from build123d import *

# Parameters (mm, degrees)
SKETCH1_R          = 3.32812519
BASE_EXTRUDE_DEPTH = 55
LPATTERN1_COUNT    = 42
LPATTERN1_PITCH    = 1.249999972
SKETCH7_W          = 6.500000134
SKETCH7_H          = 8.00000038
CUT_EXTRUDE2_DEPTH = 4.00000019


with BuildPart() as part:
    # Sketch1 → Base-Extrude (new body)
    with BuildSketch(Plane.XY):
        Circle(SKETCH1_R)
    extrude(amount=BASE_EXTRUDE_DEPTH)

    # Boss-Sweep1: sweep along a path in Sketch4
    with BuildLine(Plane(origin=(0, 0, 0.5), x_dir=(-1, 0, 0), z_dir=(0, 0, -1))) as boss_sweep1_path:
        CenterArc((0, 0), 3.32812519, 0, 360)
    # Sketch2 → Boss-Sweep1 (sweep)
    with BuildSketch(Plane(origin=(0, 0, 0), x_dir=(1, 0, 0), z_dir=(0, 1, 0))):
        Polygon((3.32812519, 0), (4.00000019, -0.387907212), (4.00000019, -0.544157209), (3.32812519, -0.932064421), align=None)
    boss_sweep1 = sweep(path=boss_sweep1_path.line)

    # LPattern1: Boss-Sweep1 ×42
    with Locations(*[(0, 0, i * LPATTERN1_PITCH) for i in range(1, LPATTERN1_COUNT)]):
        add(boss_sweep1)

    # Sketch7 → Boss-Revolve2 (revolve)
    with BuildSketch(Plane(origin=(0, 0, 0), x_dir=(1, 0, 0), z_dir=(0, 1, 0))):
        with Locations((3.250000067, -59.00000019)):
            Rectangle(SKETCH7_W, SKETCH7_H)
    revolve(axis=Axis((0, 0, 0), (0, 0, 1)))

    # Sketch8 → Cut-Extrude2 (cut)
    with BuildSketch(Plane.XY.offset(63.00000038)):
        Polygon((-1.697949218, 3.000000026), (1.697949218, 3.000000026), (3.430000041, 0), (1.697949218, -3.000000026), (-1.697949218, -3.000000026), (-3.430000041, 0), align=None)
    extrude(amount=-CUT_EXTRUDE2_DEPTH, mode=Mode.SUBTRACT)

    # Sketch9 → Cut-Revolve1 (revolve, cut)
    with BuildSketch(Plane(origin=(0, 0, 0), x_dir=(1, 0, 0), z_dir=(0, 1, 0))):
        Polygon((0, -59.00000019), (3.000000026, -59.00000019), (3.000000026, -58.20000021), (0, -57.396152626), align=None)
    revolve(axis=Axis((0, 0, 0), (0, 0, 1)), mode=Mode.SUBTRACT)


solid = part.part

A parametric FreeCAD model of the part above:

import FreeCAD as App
import Part
import Sketcher

V = App.Vector
Q = App.Units.Quantity

doc = App.newDocument("Part")
body = doc.addObject("PartDesign::Body", "Body")

# Sketch on XY plane
sketch1 = doc.addObject("Sketcher::SketchObject", "Sketch")
body.addObject(sketch1)
sketch1.AttachmentSupport = (doc.XY_Plane, [""])
sketch1.MapMode = "FlatFace"
sketch1.addGeometry(Part.Circle(V(0, 0, 0), V(0, 0, 1), 3.3), False)
sketch1.addConstraint(Sketcher.Constraint("Coincident", 0, 3, -1, 1))
sketch1.addConstraint(Sketcher.Constraint("Diameter", 0, Q("6.65625 mm")))
pad1 = doc.addObject("PartDesign::Pad", "Pad")
body.addObject(pad1)
pad1.Profile = sketch1
pad1.Length = 55

# Sketch on XZ plane
sketch2 = doc.addObject("Sketcher::SketchObject", "Sketch001")
body.addObject(sketch2)
sketch2.AttachmentSupport = (doc.XZ_Plane, [""])
sketch2.MapMode = "FlatFace"
sketch2.addGeometry(Part.LineSegment(V(4, 0.39, 0), V(3.33, 0, 0)), False)
sketch2.addGeometry(Part.LineSegment(V(3.33, 0, 0), V(3.33, 0.93, 0)), False)
sketch2.addGeometry(Part.LineSegment(V(3.33, 0.93, 0), V(4, 0.54, 0)), False)
sketch2.addGeometry(Part.LineSegment(V(4, 0.54, 0), V(4, 0.39, 0)), False)
sketch2.addConstraint(Sketcher.Constraint("Coincident", 0, 2, 1, 1))
sketch2.addConstraint(Sketcher.Constraint("Coincident", 1, 2, 2, 1))
sketch2.addConstraint(Sketcher.Constraint("Coincident", 2, 2, 3, 1))
sketch2.addConstraint(Sketcher.Constraint("Coincident", 3, 2, 0, 1))
sketch2.addConstraint(Sketcher.Constraint("Vertical", 1))
sketch2.addConstraint(Sketcher.Constraint("Vertical", 3))
sketch2.addConstraint(Sketcher.Constraint("PointOnObject", 0, 2, -1))
sketch2.addConstraint(Sketcher.Constraint("Equal", 0, 2))
sketch2.addConstraint(Sketcher.Constraint("Angle", 0, Q("-150 deg")))
sketch2.addConstraint(Sketcher.Constraint("DistanceX", -1, 1, 2, 2, Q("4 mm")))
sketch2.addConstraint(Sketcher.Constraint("DistanceY", 3, 2, 3, 1, Q("0.15625 mm")))
sketch2.addConstraint(Sketcher.Constraint("DistanceY", 1, 1, 1, 2, Q("0.932064 mm")))

# Sketch on XY plane
sketch3 = doc.addObject("Sketcher::SketchObject", "Sketch002")
body.addObject(sketch3)
sketch3.AttachmentSupport = (doc.XY_Plane, [""])
sketch3.MapMode = "FlatFace"
sketch3.AttachmentOffset = App.Placement(V(0, 0, 0.5), App.Rotation())
sketch3.addGeometry(Part.Circle(V(0, 0, 0), V(0, 0, 1), 3.3), False)
sketch3.addConstraint(Sketcher.Constraint("Coincident", 0, 3, -1, 1))
sketch3.addConstraint(Sketcher.Constraint("Diameter", 0, Q("6.65625 mm")))
doc.recompute()

additivepipe = doc.addObject("PartDesign::AdditivePipe", "AdditivePipe")
body.addObject(additivepipe)
additivepipe.Profile = sketch2
additivepipe.Spine = (sketch3, ["Edge1"])
doc.recompute()

linearpattern = doc.addObject("PartDesign::LinearPattern", "LinearPattern")
body.addObject(linearpattern)
linearpattern.Originals = [additivepipe]
linearpattern.Direction = (doc.Z_Axis, [""])
linearpattern.Mode = "offset"
linearpattern.Offset = 1.25
linearpattern.Occurrences = 42
body.Tip = linearpattern

# Sketch on XZ plane
sketch4 = doc.addObject("Sketcher::SketchObject", "Sketch003")
body.addObject(sketch4)
sketch4.AttachmentSupport = (doc.XZ_Plane, [""])
sketch4.MapMode = "FlatFace"
sketch4.addGeometry(Part.LineSegment(V(0, 55, 0), V(0, 63, 0)), False)
sketch4.addGeometry(Part.LineSegment(V(0, 63, 0), V(7, 63, 0)), False)
sketch4.addGeometry(Part.LineSegment(V(7, 63, 0), V(7, 55, 0)), False)
sketch4.addGeometry(Part.LineSegment(V(7, 55, 0), V(0, 55, 0)), False)
sketch4.addConstraint(Sketcher.Constraint("Coincident", 0, 2, 1, 1))
sketch4.addConstraint(Sketcher.Constraint("Coincident", 1, 2, 2, 1))
sketch4.addConstraint(Sketcher.Constraint("Coincident", 2, 2, 3, 1))
sketch4.addConstraint(Sketcher.Constraint("Coincident", 3, 2, 0, 1))
sketch4.addConstraint(Sketcher.Constraint("Vertical", 0))
sketch4.addConstraint(Sketcher.Constraint("Horizontal", 1))
sketch4.addConstraint(Sketcher.Constraint("Vertical", 2))
sketch4.addConstraint(Sketcher.Constraint("Horizontal", 3))
sketch4.addConstraint(Sketcher.Constraint("PointOnObject", 0, 2, -2))
sketch4.addConstraint(Sketcher.Constraint("DistanceY", 0, 1, 0, 2, Q("8 mm")))
sketch4.addConstraint(Sketcher.Constraint("DistanceX", 1, 1, 1, 2, Q("6.5 mm")))
sketch4.addConstraint(Sketcher.Constraint("DistanceY", -1, 1, 0, 2, Q("63 mm")))
revolution = doc.addObject("PartDesign::Revolution", "Revolution")
body.addObject(revolution)
revolution.Profile = sketch4
revolution.ReferenceAxis = (sketch4, ["V_Axis"])
revolution.Angle = 360

# Sketch on XY plane
sketch5 = doc.addObject("Sketcher::SketchObject", "Sketch004")
body.addObject(sketch5)
sketch5.AttachmentSupport = (doc.XY_Plane, [""])
sketch5.MapMode = "FlatFace"
sketch5.AttachmentOffset = App.Placement(V(0, 0, 63), App.Rotation())
sketch5.addGeometry(Part.LineSegment(V(1.7, 3, 0), V(-1.7, 3, 0)), False)
sketch5.addGeometry(Part.LineSegment(V(-1.7, 3, 0), V(-3.4, 0, 0)), False)
sketch5.addGeometry(Part.LineSegment(V(-3.4, 0, 0), V(-1.7, -3, 0)), False)
sketch5.addGeometry(Part.LineSegment(V(-1.7, -3, 0), V(1.7, -3, 0)), False)
sketch5.addGeometry(Part.LineSegment(V(1.7, -3, 0), V(3.4, 0, 0)), False)
sketch5.addGeometry(Part.LineSegment(V(3.4, 0, 0), V(1.7, 3, 0)), False)
sketch5.addConstraint(Sketcher.Constraint("Coincident", 0, 2, 1, 1))
sketch5.addConstraint(Sketcher.Constraint("Coincident", 1, 2, 2, 1))
sketch5.addConstraint(Sketcher.Constraint("Coincident", 2, 2, 3, 1))
sketch5.addConstraint(Sketcher.Constraint("Coincident", 3, 2, 4, 1))
sketch5.addConstraint(Sketcher.Constraint("Coincident", 4, 2, 5, 1))
sketch5.addConstraint(Sketcher.Constraint("Coincident", 5, 2, 0, 1))
sketch5.addConstraint(Sketcher.Constraint("Horizontal", 0))
sketch5.addConstraint(Sketcher.Constraint("Horizontal", 3))
sketch5.addConstraint(Sketcher.Constraint("Symmetric", 0, 2, 3, 2, -1, 1))
sketch5.addConstraint(Sketcher.Constraint("Symmetric", 1, 2, 4, 2, -1, 1))
sketch5.addConstraint(Sketcher.Constraint("PointOnObject", 1, 2, -1))
sketch5.addConstraint(Sketcher.Constraint("Parallel", 2, 5))
sketch5.addConstraint(Sketcher.Constraint("Vertical", 0, 2, 2, 2))
sketch5.addConstraint(Sketcher.Constraint("Angle", 1, Q("-120 deg")))
sketch5.addConstraint(Sketcher.Constraint("DistanceY", -1, 1, 0, 2, Q("3 mm")))
sketch5.addConstraint(Sketcher.Constraint("DistanceX", 1, 2, -1, 1, Q("3.43 mm")))
pocket1 = doc.addObject("PartDesign::Pocket", "Pocket")
body.addObject(pocket1)
pocket1.Profile = sketch5
pocket1.Length = 4

# Sketch on XZ plane
sketch6 = doc.addObject("Sketcher::SketchObject", "Sketch005")
body.addObject(sketch6)
sketch6.AttachmentSupport = (doc.XZ_Plane, [""])
sketch6.MapMode = "FlatFace"
sketch6.addGeometry(Part.LineSegment(V(0, 59, 0), V(3, 59, 0)), False)
sketch6.addGeometry(Part.LineSegment(V(3, 59, 0), V(3, 58.2, 0)), False)
sketch6.addGeometry(Part.LineSegment(V(3, 58.2, 0), V(0, 57.4, 0)), False)
sketch6.addGeometry(Part.LineSegment(V(0, 57.4, 0), V(0, 59, 0)), False)
sketch6.addConstraint(Sketcher.Constraint("Coincident", 0, 2, 1, 1))
sketch6.addConstraint(Sketcher.Constraint("Coincident", 1, 2, 2, 1))
sketch6.addConstraint(Sketcher.Constraint("Coincident", 2, 2, 3, 1))
sketch6.addConstraint(Sketcher.Constraint("Coincident", 3, 2, 0, 1))
sketch6.addConstraint(Sketcher.Constraint("Horizontal", 0))
sketch6.addConstraint(Sketcher.Constraint("Vertical", 1))
sketch6.addConstraint(Sketcher.Constraint("Vertical", 3))
sketch6.addConstraint(Sketcher.Constraint("PointOnObject", 2, 2, -2))
sketch6.addConstraint(Sketcher.Constraint("DistanceX", 0, 1, 0, 2, Q("3 mm")))
sketch6.addConstraint(Sketcher.Constraint("Angle", 2, Q("-165 deg")))
sketch6.addConstraint(Sketcher.Constraint("DistanceY", 1, 2, 1, 1, Q("0.8 mm")))
sketch6.addConstraint(Sketcher.Constraint("DistanceY", -1, 1, 0, 2, Q("59 mm")))
groove = doc.addObject("PartDesign::Groove", "Groove")
body.addObject(groove)
groove.Profile = sketch6
groove.ReferenceAxis = (sketch6, ["V_Axis"])
groove.Angle = 360

doc.recompute()
